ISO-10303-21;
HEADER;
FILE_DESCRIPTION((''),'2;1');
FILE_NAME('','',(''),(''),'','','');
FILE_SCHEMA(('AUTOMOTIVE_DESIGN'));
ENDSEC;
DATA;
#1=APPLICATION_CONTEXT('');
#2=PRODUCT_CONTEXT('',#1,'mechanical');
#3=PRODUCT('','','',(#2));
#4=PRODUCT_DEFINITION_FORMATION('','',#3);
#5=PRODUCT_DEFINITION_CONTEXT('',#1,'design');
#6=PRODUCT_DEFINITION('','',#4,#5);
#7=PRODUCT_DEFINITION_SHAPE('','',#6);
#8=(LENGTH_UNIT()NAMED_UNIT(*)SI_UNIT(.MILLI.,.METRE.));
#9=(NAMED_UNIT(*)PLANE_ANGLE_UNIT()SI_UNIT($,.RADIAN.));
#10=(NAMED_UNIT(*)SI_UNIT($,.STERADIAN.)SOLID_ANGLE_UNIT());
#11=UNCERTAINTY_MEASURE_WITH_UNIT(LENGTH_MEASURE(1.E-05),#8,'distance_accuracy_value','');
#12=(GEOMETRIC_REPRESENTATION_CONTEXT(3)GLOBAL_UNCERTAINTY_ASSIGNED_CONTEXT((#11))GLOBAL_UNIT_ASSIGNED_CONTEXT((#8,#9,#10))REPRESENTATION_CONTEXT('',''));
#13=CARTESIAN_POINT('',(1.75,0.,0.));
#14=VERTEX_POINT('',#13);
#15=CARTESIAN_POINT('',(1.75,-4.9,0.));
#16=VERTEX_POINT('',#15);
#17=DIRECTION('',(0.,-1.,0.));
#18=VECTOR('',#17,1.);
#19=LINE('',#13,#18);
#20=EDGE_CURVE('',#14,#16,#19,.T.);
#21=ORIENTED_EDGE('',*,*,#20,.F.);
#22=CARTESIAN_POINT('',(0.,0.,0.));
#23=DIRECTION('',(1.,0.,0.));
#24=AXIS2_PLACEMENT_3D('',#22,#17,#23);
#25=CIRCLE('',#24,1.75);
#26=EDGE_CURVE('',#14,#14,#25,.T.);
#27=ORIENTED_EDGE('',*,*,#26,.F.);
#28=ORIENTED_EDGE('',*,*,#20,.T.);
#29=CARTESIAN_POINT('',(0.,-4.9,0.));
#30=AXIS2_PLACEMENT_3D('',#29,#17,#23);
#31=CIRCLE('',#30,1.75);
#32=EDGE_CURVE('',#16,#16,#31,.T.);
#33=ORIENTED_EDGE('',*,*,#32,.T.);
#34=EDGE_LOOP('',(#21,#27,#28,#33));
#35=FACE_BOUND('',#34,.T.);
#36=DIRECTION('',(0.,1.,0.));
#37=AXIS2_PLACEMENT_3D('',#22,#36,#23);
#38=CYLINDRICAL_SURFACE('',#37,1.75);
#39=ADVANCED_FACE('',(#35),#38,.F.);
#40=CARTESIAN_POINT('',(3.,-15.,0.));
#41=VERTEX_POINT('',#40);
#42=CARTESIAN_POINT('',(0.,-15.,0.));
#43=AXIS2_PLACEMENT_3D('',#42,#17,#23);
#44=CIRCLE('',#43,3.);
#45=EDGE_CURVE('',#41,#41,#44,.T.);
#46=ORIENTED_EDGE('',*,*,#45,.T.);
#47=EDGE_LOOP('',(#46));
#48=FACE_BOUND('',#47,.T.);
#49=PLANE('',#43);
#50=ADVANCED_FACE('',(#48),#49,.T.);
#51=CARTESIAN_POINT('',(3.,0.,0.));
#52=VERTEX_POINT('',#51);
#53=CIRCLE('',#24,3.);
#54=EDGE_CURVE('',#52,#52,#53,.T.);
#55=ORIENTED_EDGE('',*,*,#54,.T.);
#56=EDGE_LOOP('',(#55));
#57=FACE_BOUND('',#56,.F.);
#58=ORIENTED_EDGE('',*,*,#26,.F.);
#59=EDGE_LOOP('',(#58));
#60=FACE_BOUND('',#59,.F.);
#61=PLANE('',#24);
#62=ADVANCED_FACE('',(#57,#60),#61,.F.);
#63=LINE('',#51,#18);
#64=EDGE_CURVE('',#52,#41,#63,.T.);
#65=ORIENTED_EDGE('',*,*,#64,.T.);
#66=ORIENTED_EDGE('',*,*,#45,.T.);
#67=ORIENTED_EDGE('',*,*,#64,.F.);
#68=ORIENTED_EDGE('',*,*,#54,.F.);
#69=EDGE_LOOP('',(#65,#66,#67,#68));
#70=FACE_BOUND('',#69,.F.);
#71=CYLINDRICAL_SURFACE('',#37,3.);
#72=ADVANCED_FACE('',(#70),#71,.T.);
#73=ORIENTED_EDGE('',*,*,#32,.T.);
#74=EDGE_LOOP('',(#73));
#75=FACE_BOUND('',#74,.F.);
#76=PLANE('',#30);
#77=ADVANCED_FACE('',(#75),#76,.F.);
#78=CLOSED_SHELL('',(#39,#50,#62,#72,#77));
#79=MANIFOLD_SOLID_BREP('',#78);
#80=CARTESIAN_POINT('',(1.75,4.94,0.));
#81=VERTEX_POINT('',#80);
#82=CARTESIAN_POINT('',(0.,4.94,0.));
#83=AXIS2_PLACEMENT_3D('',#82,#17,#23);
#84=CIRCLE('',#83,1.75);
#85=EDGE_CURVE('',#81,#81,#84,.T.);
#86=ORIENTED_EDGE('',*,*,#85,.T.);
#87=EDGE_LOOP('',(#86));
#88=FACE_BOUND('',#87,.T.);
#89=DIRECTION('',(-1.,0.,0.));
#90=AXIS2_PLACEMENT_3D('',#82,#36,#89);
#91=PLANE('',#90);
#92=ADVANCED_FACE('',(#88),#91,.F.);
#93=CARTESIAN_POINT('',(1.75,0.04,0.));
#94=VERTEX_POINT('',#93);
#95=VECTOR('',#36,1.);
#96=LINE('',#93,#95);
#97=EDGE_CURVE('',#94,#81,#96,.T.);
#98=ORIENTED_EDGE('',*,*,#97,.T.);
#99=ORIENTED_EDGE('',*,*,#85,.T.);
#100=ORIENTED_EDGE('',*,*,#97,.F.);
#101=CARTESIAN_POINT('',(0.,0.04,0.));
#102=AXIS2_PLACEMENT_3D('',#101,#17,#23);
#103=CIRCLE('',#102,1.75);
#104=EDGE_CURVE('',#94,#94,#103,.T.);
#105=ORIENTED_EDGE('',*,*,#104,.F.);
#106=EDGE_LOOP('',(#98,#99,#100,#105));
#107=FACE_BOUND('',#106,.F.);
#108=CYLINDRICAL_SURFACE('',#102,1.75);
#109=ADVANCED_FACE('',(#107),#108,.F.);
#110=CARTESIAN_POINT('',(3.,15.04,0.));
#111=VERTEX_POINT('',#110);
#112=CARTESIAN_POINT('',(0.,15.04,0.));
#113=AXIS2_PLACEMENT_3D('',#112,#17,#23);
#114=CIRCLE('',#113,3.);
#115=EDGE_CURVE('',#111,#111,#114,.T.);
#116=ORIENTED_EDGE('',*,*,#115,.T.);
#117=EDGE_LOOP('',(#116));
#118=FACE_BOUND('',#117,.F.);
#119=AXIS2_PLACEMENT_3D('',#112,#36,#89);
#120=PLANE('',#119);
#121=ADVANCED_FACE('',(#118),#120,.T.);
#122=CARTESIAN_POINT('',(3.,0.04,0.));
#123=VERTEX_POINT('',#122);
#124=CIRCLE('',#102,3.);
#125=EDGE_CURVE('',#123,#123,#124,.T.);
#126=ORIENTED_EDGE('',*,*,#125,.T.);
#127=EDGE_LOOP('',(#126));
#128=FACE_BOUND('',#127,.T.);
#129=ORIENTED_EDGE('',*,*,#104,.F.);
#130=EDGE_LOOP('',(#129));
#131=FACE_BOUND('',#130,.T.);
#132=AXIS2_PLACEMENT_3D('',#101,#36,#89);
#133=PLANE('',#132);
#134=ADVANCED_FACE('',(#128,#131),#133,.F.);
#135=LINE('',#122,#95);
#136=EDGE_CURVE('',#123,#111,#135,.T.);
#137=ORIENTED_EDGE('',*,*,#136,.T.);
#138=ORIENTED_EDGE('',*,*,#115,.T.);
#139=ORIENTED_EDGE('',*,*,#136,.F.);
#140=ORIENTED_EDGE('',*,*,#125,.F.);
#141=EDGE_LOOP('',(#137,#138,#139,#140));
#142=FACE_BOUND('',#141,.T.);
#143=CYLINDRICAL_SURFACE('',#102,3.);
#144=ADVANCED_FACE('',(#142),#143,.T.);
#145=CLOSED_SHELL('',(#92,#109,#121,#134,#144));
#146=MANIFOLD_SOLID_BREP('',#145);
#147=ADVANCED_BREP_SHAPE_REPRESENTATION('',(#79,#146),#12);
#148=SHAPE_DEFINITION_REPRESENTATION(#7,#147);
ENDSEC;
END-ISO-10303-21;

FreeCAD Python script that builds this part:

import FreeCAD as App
import Part
import Sketcher
from FreeCAD import Vector

doc = App.newDocument("Part")
body = doc.addObject("PartDesign::Body", "Body")

sketch1 = body.newObject("Sketcher::SketchObject", "Sketch")
sketch1.AttachmentSupport = (doc.getObject("XZ_Plane"), [""])
sketch1.MapMode = "FlatFace"
sketch1.addGeometry(Part.Circle(Vector(0, 0, 0), Vector(0, 0, 1), 3), False)
sketch1.addConstraint([
    Sketcher.Constraint("Coincident", 0, 3, -1, 1),
    Sketcher.Constraint("Diameter", 0, 6.0),
])
pad1 = body.newObject("PartDesign::Pad", "Pad")
pad1.Profile = sketch1
pad1.Length = 15

sketch2 = body.newObject("Sketcher::SketchObject", "Sketch001")
sketch2.AttachmentSupport = (doc.getObject("XZ_Plane"), [""])
sketch2.MapMode = "FlatFace"
sketch2.addGeometry(Part.Circle(Vector(0, 0, 0), Vector(0, 0, 1), 1.8), False)
sketch2.addConstraint([
    Sketcher.Constraint("Coincident", 0, 3, -1, 1),
    Sketcher.Constraint("Diameter", 0, 3.5),
])
pocket1 = body.newObject("PartDesign::Pocket", "Pocket")
pocket1.Profile = sketch2
pocket1.Length = 4.9
pocket1.Reversed = True
body2 = doc.addObject("PartDesign::Body", "Body001")
doc.recompute()

mirroring = doc.addObject("Part::Mirroring", "Mirroring")
mirroring.Source = body
mirroring.Base = Vector(0, 0.02, 0)
mirroring.Normal = Vector(0, -1, 0)
body2.BaseFeature = mirroring
doc.recompute()
mirroring.Visibility = False

doc.recompute()
